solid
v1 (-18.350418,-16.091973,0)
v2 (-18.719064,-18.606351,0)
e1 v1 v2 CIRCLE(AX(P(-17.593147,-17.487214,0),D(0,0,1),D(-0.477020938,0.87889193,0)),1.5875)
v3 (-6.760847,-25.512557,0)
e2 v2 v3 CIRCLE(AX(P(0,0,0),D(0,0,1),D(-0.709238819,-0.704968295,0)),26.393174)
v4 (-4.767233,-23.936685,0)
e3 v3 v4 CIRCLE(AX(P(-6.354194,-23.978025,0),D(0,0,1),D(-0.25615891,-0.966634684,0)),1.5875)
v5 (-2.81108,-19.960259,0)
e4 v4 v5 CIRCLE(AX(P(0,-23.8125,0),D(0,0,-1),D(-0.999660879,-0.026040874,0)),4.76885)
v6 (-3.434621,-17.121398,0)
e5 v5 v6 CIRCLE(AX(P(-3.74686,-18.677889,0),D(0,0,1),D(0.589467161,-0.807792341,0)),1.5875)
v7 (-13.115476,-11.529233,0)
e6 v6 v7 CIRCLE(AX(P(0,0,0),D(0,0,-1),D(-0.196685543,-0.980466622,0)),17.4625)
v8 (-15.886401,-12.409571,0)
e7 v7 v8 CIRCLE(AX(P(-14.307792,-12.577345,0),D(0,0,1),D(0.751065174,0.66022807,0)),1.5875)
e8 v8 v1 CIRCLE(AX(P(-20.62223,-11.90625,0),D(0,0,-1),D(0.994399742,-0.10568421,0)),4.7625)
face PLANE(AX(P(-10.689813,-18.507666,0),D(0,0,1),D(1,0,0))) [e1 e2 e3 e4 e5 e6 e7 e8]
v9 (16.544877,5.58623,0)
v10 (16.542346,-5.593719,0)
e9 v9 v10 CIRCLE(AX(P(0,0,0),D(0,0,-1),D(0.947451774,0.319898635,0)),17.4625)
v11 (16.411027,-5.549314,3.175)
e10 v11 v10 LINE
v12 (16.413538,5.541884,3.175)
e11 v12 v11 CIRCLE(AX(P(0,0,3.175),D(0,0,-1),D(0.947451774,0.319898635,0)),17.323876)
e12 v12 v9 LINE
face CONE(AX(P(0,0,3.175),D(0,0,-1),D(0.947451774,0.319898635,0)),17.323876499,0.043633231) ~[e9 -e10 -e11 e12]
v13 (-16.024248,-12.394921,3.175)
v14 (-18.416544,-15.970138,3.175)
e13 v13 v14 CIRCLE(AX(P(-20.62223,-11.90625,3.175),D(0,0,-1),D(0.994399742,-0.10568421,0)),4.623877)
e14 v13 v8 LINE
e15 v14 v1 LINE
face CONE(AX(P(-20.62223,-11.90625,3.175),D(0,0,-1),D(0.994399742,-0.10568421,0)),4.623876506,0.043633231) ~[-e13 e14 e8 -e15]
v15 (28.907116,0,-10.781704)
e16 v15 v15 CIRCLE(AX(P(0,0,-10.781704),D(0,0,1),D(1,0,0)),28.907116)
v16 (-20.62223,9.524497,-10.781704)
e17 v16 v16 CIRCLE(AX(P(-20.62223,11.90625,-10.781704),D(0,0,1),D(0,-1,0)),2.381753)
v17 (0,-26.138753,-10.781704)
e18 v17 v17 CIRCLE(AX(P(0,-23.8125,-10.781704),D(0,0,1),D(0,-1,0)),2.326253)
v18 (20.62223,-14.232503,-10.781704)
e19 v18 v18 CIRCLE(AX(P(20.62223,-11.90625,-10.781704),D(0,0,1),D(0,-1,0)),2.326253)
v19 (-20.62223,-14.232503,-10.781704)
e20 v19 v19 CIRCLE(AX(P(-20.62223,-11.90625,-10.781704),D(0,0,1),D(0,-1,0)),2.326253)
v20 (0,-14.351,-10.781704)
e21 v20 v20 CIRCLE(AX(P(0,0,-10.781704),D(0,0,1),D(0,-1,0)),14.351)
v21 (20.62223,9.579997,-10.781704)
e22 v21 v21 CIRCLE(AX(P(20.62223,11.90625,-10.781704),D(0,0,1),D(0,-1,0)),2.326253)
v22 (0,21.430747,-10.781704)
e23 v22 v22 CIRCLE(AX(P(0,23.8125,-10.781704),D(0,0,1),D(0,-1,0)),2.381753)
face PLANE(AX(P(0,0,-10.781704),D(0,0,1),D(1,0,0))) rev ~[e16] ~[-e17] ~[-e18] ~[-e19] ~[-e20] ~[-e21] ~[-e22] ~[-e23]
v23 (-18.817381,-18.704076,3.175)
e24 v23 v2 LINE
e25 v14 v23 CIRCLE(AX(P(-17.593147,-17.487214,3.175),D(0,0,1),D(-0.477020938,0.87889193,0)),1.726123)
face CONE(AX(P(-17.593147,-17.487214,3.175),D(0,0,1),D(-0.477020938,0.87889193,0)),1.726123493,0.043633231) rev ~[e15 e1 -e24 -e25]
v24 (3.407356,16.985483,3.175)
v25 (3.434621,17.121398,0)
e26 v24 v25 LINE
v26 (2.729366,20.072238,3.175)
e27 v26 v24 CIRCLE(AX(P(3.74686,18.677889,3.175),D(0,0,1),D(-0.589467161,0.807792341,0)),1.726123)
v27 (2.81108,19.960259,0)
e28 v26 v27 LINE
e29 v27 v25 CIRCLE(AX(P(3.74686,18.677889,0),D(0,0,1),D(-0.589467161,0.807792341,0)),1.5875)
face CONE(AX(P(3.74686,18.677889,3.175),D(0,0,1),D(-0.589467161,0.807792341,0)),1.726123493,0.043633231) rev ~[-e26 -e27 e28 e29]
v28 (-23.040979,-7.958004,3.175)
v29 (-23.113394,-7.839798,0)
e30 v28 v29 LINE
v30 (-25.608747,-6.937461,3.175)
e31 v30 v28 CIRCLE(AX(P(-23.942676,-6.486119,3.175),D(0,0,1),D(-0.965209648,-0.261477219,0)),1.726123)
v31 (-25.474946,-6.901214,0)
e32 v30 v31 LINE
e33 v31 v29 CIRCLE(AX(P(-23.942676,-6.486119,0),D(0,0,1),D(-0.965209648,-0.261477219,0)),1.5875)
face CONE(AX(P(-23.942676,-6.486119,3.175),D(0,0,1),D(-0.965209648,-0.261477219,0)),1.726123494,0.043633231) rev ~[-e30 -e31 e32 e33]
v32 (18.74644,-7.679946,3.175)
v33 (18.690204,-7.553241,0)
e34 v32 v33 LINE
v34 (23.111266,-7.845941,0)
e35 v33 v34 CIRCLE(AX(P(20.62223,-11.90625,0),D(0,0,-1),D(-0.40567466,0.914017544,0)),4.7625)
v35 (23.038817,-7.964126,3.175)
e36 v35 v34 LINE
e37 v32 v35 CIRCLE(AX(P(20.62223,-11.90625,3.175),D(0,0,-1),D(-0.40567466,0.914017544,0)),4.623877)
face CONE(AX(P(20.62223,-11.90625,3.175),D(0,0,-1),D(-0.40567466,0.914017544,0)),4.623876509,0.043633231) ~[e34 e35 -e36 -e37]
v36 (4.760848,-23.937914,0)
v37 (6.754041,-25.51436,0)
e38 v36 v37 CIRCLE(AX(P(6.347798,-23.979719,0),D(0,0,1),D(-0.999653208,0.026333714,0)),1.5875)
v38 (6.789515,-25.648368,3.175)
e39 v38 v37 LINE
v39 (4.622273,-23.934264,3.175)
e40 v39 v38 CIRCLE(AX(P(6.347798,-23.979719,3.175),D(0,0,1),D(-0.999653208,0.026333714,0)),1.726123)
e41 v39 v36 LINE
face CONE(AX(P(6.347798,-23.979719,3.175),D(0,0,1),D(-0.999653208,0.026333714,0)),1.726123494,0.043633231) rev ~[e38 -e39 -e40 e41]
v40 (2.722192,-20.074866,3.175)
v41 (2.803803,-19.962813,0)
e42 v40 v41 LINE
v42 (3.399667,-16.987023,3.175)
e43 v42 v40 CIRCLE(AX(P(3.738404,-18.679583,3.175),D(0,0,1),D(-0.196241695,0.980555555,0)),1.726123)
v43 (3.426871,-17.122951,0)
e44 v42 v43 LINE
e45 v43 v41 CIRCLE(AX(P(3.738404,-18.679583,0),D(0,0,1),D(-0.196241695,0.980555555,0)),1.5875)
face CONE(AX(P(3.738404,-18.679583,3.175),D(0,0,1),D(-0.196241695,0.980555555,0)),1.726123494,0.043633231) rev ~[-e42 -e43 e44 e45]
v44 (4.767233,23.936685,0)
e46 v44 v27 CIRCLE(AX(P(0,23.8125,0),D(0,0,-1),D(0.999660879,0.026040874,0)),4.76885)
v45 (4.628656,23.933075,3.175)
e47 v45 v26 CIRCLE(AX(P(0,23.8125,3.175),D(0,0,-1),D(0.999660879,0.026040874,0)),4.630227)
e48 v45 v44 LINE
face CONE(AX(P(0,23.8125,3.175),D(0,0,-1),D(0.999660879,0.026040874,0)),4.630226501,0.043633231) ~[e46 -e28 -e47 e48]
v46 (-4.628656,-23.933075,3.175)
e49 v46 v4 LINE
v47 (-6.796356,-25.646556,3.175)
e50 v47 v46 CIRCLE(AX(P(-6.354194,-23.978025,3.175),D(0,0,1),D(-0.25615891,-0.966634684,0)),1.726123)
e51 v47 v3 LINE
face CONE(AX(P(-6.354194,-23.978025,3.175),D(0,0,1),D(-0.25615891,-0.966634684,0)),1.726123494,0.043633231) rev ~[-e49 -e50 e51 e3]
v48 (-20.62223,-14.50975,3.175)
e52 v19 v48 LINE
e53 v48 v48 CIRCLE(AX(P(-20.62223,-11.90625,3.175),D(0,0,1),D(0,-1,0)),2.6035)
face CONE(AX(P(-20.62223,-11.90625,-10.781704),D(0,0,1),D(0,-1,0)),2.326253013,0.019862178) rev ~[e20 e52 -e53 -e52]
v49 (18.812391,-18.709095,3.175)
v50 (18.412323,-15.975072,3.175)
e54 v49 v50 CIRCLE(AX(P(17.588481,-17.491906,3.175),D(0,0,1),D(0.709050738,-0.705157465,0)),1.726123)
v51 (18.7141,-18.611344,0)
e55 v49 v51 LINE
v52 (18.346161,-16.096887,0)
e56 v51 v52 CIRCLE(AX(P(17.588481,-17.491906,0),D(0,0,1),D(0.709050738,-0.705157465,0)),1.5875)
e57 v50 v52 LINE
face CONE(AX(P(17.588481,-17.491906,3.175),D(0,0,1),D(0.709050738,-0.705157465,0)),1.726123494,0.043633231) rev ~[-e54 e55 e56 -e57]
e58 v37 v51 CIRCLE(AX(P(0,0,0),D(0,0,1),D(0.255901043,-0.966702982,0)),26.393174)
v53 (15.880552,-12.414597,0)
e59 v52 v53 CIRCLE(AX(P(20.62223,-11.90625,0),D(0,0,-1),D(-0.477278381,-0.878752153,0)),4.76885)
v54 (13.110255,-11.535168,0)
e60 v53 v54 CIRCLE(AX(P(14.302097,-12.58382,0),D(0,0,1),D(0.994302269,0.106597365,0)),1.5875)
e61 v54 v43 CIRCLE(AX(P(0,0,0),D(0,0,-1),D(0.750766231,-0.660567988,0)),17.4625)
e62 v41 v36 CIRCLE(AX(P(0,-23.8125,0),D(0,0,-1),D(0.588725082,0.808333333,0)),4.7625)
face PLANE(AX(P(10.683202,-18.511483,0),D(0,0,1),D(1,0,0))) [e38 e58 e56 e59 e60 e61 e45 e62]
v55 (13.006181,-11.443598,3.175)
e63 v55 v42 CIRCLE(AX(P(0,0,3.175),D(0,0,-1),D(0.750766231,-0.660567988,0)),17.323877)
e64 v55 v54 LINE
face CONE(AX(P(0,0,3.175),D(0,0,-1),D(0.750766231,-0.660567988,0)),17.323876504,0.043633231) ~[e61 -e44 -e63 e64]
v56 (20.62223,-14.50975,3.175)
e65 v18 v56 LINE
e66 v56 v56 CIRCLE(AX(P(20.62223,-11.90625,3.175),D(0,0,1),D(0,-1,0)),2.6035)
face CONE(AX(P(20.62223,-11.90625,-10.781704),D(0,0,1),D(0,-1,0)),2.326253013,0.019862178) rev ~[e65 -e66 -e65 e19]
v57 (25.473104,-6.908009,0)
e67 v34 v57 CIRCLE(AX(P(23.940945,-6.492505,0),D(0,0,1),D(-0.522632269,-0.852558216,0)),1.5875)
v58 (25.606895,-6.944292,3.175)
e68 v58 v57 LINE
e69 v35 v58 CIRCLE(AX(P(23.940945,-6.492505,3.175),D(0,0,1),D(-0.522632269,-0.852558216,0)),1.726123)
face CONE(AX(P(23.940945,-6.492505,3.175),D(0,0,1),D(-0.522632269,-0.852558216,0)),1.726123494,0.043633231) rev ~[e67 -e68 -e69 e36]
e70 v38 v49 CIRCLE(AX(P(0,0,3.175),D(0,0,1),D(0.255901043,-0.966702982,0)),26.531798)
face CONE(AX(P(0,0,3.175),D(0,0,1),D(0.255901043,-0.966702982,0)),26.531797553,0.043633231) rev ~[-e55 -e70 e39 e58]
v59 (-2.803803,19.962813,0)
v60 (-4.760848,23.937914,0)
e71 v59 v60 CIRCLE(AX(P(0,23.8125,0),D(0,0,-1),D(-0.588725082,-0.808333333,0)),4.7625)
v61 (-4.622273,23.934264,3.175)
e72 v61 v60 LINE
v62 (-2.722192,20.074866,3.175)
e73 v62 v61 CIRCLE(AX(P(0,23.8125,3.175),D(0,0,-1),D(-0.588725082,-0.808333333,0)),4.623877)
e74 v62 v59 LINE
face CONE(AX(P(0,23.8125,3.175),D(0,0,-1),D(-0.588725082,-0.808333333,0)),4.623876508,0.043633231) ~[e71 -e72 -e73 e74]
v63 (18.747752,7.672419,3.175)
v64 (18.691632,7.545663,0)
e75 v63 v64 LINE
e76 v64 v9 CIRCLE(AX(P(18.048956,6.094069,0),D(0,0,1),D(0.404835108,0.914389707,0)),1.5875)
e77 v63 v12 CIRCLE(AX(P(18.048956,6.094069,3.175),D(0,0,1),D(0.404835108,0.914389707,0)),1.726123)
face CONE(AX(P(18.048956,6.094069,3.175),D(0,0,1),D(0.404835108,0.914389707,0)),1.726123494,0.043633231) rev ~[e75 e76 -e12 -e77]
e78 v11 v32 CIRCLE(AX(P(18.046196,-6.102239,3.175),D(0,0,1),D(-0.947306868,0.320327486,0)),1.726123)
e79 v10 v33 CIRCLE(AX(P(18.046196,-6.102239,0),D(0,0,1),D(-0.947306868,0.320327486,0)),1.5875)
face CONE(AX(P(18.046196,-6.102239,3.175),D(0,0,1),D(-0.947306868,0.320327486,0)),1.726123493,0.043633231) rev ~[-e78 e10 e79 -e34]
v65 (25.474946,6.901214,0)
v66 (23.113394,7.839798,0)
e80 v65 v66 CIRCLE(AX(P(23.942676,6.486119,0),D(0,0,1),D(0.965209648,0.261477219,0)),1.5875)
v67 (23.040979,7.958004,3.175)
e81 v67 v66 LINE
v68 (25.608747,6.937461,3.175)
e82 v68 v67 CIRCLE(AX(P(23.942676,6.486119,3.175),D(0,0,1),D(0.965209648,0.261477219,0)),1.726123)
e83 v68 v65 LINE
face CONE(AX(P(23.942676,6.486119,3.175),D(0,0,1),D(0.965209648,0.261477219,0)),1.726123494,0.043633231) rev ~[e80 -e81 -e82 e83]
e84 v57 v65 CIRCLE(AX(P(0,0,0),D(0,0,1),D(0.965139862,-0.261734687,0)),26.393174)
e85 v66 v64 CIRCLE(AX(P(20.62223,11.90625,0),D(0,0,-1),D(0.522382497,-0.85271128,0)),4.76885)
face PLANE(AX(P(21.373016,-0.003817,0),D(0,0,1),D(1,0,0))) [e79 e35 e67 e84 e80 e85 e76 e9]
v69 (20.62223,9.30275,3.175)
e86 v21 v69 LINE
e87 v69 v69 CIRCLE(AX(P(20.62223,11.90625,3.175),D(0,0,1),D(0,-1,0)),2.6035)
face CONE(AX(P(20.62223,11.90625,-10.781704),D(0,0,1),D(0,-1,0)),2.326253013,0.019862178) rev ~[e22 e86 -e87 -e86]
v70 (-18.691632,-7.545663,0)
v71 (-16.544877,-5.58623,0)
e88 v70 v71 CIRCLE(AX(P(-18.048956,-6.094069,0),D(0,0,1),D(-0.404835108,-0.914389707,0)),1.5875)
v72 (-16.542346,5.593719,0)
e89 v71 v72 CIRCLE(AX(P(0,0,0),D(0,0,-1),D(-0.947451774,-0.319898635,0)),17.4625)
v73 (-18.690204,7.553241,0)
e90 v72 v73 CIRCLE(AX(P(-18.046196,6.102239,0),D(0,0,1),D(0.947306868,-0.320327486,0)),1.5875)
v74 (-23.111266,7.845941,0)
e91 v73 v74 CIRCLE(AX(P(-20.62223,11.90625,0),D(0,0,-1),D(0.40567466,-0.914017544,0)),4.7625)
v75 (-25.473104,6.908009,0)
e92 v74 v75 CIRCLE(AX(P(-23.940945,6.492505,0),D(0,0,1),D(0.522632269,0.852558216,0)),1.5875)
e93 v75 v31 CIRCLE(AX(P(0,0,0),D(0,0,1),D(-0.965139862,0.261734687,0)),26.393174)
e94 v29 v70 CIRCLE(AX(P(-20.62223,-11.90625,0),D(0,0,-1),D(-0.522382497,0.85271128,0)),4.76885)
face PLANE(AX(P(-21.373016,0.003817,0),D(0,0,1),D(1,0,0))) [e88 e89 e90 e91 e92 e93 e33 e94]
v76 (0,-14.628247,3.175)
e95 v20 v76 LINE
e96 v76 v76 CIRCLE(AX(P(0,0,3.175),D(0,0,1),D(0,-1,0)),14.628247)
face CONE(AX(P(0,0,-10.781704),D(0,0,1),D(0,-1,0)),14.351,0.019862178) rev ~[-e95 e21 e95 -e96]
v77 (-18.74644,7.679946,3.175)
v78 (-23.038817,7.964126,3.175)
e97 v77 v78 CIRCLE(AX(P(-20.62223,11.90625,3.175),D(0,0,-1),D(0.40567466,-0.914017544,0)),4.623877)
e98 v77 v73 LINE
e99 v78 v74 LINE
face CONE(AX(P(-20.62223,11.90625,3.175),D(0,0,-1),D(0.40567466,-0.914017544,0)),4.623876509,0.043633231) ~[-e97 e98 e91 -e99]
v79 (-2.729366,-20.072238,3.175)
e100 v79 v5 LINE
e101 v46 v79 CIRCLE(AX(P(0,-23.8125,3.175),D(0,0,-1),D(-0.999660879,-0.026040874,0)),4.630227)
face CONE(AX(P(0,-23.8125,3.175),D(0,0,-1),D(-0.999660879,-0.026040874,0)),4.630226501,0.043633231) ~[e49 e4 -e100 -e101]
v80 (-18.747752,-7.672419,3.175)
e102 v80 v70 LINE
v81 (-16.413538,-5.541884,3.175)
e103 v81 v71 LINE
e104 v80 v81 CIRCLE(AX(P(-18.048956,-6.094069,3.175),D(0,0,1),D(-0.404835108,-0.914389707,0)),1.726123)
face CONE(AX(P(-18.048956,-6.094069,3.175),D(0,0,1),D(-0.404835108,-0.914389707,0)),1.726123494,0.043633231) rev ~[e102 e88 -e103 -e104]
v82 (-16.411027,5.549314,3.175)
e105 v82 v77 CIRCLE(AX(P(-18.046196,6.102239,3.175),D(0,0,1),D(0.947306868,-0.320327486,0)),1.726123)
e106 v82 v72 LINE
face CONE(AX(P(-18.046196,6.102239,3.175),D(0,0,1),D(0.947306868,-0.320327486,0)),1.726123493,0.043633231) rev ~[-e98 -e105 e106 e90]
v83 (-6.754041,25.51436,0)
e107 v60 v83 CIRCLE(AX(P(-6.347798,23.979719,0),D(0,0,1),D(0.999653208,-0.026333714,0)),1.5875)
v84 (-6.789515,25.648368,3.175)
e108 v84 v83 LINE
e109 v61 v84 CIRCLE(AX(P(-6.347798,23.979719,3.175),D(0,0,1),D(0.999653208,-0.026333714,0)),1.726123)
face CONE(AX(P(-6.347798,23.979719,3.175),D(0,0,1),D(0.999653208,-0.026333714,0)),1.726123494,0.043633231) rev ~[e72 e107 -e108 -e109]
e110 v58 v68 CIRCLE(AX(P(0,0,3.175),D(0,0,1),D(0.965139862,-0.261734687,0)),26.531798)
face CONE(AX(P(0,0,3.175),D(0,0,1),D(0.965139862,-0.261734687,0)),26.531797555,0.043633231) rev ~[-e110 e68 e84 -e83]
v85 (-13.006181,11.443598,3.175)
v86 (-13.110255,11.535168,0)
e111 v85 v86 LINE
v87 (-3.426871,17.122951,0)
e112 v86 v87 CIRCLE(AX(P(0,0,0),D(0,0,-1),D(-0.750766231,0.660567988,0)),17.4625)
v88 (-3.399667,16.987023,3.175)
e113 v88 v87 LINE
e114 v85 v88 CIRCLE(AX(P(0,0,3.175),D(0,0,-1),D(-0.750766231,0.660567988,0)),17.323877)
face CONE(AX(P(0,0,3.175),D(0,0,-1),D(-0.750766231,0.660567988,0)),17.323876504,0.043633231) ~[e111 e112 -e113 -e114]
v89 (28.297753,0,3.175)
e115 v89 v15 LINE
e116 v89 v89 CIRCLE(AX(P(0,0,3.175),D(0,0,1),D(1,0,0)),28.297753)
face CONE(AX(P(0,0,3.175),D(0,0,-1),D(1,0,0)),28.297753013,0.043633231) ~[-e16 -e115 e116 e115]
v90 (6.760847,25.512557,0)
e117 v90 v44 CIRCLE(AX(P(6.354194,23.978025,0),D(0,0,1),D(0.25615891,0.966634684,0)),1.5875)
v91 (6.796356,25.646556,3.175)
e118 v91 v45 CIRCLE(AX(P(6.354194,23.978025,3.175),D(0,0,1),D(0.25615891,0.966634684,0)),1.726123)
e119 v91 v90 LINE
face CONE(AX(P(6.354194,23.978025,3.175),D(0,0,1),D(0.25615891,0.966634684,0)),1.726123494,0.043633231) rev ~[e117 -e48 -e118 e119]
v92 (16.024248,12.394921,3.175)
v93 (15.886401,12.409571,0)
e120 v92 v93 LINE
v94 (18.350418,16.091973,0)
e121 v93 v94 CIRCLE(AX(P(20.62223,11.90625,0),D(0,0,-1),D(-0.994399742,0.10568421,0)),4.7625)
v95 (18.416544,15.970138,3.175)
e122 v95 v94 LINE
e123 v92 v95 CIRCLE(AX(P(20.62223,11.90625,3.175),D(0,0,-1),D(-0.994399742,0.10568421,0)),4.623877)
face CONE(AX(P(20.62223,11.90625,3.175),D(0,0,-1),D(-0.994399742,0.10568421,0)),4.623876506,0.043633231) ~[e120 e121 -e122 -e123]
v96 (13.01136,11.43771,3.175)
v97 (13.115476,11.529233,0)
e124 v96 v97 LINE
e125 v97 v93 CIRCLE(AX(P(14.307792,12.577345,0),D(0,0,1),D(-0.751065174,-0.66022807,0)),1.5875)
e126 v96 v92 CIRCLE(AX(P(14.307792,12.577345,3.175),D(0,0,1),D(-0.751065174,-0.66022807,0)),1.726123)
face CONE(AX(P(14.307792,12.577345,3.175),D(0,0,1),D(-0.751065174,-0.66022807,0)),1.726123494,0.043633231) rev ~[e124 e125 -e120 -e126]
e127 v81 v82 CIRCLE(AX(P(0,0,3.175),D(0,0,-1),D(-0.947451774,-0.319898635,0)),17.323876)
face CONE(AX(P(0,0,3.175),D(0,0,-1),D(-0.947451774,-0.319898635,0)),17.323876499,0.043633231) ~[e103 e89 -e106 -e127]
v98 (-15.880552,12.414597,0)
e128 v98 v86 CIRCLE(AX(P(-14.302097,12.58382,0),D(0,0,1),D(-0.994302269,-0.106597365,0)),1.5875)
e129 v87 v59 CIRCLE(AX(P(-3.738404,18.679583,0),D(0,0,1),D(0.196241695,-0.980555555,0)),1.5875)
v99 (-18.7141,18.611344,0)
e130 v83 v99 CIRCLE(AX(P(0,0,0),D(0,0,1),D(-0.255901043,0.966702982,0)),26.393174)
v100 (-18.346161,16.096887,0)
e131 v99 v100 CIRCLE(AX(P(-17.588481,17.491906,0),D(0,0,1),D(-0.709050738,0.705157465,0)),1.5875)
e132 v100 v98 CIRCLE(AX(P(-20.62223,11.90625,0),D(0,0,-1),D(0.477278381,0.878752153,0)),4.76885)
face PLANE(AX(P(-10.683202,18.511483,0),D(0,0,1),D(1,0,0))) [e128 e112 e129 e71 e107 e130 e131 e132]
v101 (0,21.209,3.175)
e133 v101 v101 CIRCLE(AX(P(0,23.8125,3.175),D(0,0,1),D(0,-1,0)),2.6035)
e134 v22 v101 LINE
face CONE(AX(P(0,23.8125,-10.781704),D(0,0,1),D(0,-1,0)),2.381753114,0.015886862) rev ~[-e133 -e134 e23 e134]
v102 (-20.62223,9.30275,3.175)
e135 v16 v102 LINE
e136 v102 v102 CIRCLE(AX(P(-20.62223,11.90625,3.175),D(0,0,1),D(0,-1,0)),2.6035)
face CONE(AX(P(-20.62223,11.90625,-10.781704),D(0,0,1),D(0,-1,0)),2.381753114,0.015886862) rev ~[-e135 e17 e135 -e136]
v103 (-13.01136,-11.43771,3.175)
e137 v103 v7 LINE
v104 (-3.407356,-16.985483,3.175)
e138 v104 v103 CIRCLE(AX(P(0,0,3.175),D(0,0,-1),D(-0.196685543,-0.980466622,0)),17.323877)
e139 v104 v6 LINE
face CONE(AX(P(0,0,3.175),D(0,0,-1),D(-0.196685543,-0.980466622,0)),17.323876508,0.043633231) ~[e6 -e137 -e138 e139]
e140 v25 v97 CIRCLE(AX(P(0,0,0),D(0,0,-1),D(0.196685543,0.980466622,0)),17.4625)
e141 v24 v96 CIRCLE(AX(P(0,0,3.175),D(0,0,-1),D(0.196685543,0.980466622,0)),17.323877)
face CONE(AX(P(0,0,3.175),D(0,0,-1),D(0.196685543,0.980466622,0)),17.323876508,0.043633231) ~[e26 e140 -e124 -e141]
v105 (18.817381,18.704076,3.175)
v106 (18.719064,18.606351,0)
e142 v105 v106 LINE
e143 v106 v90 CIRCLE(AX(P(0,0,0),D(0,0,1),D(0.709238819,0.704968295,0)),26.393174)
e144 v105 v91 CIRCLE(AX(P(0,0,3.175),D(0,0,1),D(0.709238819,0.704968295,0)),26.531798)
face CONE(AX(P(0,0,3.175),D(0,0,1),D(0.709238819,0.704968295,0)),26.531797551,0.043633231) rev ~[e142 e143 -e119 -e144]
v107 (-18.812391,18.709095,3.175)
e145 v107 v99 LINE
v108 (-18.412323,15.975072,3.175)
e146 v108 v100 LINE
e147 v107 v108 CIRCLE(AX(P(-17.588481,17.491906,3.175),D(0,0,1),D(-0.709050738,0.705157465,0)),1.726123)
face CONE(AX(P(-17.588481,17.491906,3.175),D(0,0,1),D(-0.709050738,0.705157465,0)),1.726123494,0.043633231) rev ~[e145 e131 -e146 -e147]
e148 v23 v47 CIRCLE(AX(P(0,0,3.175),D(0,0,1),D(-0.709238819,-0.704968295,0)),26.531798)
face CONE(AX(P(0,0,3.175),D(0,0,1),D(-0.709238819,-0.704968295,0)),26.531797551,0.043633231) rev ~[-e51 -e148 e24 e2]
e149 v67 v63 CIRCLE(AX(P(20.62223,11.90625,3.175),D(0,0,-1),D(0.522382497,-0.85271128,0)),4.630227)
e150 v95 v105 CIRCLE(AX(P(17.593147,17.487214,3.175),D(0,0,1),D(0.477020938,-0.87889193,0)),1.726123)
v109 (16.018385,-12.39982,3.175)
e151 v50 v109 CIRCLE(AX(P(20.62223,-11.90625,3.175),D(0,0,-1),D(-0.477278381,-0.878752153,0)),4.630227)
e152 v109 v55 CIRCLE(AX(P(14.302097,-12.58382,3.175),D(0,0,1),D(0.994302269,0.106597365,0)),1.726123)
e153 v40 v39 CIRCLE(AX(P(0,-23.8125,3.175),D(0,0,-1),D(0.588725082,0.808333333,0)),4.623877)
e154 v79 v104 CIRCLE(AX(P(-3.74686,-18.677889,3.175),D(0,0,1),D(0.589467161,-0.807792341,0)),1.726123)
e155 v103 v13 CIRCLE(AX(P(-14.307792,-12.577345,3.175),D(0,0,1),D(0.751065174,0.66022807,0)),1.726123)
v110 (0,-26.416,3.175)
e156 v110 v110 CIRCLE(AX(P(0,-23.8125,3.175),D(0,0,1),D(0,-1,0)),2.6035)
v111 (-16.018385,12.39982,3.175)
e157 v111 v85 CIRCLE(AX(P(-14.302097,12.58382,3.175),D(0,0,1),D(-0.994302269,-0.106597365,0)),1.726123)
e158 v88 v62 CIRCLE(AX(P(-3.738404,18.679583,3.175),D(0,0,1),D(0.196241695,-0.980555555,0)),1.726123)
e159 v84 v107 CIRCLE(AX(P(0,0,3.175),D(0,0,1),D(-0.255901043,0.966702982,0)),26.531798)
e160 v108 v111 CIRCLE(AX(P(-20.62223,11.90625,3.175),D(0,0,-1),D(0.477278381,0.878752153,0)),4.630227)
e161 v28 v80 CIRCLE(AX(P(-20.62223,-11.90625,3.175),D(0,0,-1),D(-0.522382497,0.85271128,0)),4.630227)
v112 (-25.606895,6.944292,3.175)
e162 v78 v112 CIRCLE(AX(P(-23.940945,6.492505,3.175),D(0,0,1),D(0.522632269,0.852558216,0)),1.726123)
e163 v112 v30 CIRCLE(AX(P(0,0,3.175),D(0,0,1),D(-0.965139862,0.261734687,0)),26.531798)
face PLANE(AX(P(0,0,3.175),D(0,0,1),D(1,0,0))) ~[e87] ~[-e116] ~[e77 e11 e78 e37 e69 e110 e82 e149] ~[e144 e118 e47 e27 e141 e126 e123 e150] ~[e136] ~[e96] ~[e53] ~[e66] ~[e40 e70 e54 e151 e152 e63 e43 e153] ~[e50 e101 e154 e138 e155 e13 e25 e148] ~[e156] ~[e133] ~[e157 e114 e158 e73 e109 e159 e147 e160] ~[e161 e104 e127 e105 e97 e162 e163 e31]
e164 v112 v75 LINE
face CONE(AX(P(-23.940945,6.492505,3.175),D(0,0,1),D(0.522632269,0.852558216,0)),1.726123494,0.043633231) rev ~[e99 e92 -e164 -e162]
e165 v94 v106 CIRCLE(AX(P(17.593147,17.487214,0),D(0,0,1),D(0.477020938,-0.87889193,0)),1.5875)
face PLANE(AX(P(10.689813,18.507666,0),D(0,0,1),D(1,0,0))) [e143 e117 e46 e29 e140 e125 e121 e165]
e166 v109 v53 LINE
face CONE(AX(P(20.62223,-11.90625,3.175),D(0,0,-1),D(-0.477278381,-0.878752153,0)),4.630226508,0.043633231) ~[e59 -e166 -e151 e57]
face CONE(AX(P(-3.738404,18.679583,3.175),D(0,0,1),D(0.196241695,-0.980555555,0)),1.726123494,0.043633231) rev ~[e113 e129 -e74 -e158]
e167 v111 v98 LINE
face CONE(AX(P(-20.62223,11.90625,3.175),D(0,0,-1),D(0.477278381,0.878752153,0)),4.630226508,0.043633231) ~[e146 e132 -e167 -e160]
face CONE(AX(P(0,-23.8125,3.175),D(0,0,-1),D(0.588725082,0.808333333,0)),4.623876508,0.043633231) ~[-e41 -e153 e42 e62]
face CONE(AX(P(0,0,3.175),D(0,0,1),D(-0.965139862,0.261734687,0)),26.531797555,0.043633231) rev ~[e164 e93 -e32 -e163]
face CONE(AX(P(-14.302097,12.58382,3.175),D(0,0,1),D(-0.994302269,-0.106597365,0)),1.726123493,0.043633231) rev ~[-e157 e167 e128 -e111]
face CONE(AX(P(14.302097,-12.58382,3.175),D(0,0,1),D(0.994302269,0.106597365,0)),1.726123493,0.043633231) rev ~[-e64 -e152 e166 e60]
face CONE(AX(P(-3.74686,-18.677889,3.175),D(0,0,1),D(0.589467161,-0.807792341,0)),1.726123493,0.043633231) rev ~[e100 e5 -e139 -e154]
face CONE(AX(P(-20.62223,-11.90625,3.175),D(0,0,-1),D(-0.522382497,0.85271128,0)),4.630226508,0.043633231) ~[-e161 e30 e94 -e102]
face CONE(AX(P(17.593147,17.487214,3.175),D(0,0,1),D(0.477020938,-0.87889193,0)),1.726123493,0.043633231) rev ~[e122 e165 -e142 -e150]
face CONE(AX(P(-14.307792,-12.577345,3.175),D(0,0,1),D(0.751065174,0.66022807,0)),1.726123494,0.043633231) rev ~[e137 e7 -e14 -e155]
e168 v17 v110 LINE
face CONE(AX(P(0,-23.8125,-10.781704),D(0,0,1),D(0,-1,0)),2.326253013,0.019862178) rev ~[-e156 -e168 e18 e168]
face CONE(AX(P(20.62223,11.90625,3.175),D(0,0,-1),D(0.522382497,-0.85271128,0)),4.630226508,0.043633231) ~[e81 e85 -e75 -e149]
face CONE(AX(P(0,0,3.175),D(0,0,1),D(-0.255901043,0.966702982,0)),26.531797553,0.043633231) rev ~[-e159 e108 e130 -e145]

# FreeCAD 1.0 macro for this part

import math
import FreeCAD as App
import Part
import Sketcher
Q = App.Units.Quantity


def faces_at(feature, points):
    """Names of the faces that lie closest to the given points."""
    faces = feature.Shape.Faces
    near = lambda p: min(range(len(faces)), key=lambda i: faces[i].distToShape(Part.Vertex(*p))[0])
    return sorted({f"Face{near(p) + 1}" for p in points})


def add_polygon(sketch, points):
    """Adds a closed chain of lines whose ends are joined by coincident constraints."""
    first, n = sketch.GeometryCount, len(points)
    for a, b in zip(points, points[1:] + points[:1]):
        sketch.addGeometry(Part.LineSegment(App.Vector(*a, 0), App.Vector(*b, 0)), False)
    for i in range(n):
        sketch.addConstraint(Sketcher.Constraint("Coincident", first + i, 2, first + (i + 1) % n, 1))

doc = App.newDocument("Part")
body = doc.addObject("PartDesign::Body", "Body")

# Sketch on XZ plane
sketch1 = body.newObject("Sketcher::SketchObject", "Sketch")
sketch1.AttachmentSupport = (doc.getObject("XZ_Plane"), [""])
sketch1.MapMode = "FlatFace"
add_polygon(sketch1, [(28.907116, -10.781704), (0, -10.781704), (0, 3.175), (28.297753, 3.175)])  # lines 0-3
sketch1.addConstraint([
    Sketcher.Constraint("Horizontal", 0),
    Sketcher.Constraint("Vertical", 1),
    Sketcher.Constraint("Horizontal", 2),
    Sketcher.Constraint("PointOnObject", 0, 2, -2),
    Sketcher.Constraint("Angle", 3, Q("-87.5 deg")),
    Sketcher.Constraint("Distance", 3, Q("0.55 in")),
    Sketcher.Constraint("DistanceY", -1, 1, 1, 2, Q("0.125 in")),
    Sketcher.Constraint("DistanceX", 0, 2, 0, 1, Q("28.907116 mm")),
])
revolution = body.newObject("PartDesign::Revolution", "Revolution")
revolution.Profile = sketch1
revolution.ReferenceAxis = (sketch1, ["V_Axis"])
revolution.Angle = 360
body2 = doc.addObject("PartDesign::Body", "Body001")

# Sketch on XY plane
sketch2 = body2.newObject("Sketcher::SketchObject", "Sketch001")
sketch2.AttachmentSupport = (doc.getObject("XY_Plane001"), [""])
sketch2.MapMode = "FlatFace"
sketch2.AttachmentOffset = App.Placement(App.Vector(0, 0, 0.125 * 25.4), App.Rotation())
sketch2.addGeometry([
    Part.ArcOfCircle(Part.Circle(App.Vector(-20.62223, 11.90625, 0), App.Vector(0, 0, 1), 4.630227), math.radians(6.119205), math.radians(61.492201)),  # 0
    Part.ArcOfCircle(Part.Circle(App.Vector(-14.302097, 12.58382, 0), App.Vector(0, 0, 1), 1.726123), math.radians(-173.880795), math.radians(-41.343205)),  # 1
    Part.ArcOfCircle(Part.Circle(App.Vector(0, 0, 0), App.Vector(0, 0, 1), 17.323877), math.radians(101.317269), math.radians(138.656795)),  # 2
    Part.ArcOfCircle(Part.Circle(App.Vector(-3.738404, 18.679583, 0), App.Vector(0, 0, 1), 1.726123), math.radians(-78.682731), math.radians(53.933412)),  # 3
    Part.ArcOfCircle(Part.Circle(App.Vector(0, 23.8125, 0), App.Vector(0, 0, 1), 4.623877), math.radians(178.491015), math.radians(233.933412)),  # 4
    Part.ArcOfCircle(Part.Circle(App.Vector(-6.347798, 23.979719, 0), App.Vector(0, 0, 1), 1.726123), math.radians(-1.508985), math.radians(104.826983)),  # 5
    Part.ArcOfCircle(Part.Circle(App.Vector(0, 0, 0), App.Vector(0, 0, 1), 26.531798), math.radians(104.826983), math.radians(135.157733)),  # 6
    Part.ArcOfCircle(Part.Circle(App.Vector(-17.588481, 17.491906, 0), App.Vector(0, 0, 1), 1.726123), math.radians(135.157733), math.radians(241.492201)),  # 7
], False)
sketch2.addConstraint([
    Sketcher.Constraint("Tangent", 0, 1, 1, 1),
    Sketcher.Constraint("Tangent", 1, 2, 2, 2),
    Sketcher.Constraint("Tangent", 2, 1, 3, 1),
    Sketcher.Constraint("Tangent", 3, 2, 4, 2),
    Sketcher.Constraint("Tangent", 4, 1, 5, 1),
    Sketcher.Constraint("Tangent", 5, 2, 6, 1),
    Sketcher.Constraint("Tangent", 6, 2, 7, 1),
    Sketcher.Constraint("Tangent", 7, 2, 0, 2),
    Sketcher.Constraint("Coincident", 2, 3, -1, 1),
    Sketcher.Constraint("Coincident", 6, 3, -1, 1),
    Sketcher.Constraint("Equal", 1, 3),
    Sketcher.Constraint("Equal", 3, 5),
    Sketcher.Constraint("Equal", 5, 7),
    Sketcher.Constraint("PointOnObject", 4, 3, -2),
    Sketcher.Constraint("DistanceY", -1, 1, 0, 3, Q("0.46875 in")),
    Sketcher.Constraint("DistanceY", -1, 1, 4, 3, Q("0.9375 in")),
    Sketcher.Constraint("Radius", 0, Q("4.630227 mm")),
    Sketcher.Constraint("Radius", 1, Q("1.726123 mm")),
    Sketcher.Constraint("Radius", 2, Q("17.323877 mm")),
    Sketcher.Constraint("Radius", 4, Q("4.623877 mm")),
    Sketcher.Constraint("Radius", 6, Q("26.531798 mm")),
    Sketcher.Constraint("DistanceY", -1, 1, 1, 2, Q("11.443598 mm")),
])
pad1 = body2.newObject("PartDesign::Pad", "Pad")
pad1.Profile = sketch2
pad1.Length = Q("0.125 in")
pad1.Reversed = True
doc.recompute()

datumplane = body2.newObject("PartDesign::Plane", "DatumPlane")
datumplane.AttachmentSupport = (doc.getObject("XY_Plane001"), [""])
datumplane.MapMode = "FlatFace"
datumplane.AttachmentOffset = App.Placement(App.Vector(0, 0, 0.125 * 25.4), App.Rotation())
draft = body2.newObject("PartDesign::Draft", "Draft")
draft.Base = (pad1, faces_at(pad1, [
    (-19.296, 17.242, 1.587),
    (-16.775, 14.482, 1.587),
    (-14.824, 10.939, 1.587),
    (-8.659, 15.005, 1.587),
    (-2.052, 18.31, 1.587),
    (-4.148, 21.77, 1.587),
    (-5.277, 25.334, 1.587),
    (-13.263, 22.979, 1.587),
]))
draft.NeutralPlane = (datumplane, [""])
draft.Angle = 2.5
draft.Reversed = True
doc.recompute()

boolean = body.newObject("PartDesign::Boolean", "Boolean")
boolean.Type = "Cut"
boolean.addObjects([body2])
body3 = doc.addObject("PartDesign::Body", "Body002")

# Sketch on XY plane
sketch3 = body3.newObject("Sketcher::SketchObject", "Sketch002")
sketch3.AttachmentSupport = (doc.getObject("XY_Plane002"), [""])
sketch3.MapMode = "FlatFace"
sketch3.AttachmentOffset = App.Placement(App.Vector(0, 0, 0.125 * 25.4), App.Rotation())
sketch3.addGeometry([
    Part.ArcOfCircle(Part.Circle(App.Vector(0, 23.8125, 0), App.Vector(0, 0, 1), 4.630227), math.radians(-53.880795), math.radians(1.492201)),  # 0
    Part.ArcOfCircle(Part.Circle(App.Vector(3.74686, 18.677889, 0), App.Vector(0, 0, 1), 1.726123), math.radians(126.119205), math.radians(258.656795)),  # 1
    Part.ArcOfCircle(Part.Circle(App.Vector(0, 0, 0), App.Vector(0, 0, 1), 17.323877), math.radians(41.317269), math.radians(78.656795)),  # 2
    Part.ArcOfCircle(Part.Circle(App.Vector(14.307792, 12.577345, 0), App.Vector(0, 0, 1), 1.726123), math.radians(-138.682731), math.radians(-6.066588)),  # 3
    Part.ArcOfCircle(Part.Circle(App.Vector(20.62223, 11.90625, 0), App.Vector(0, 0, 1), 4.623877), math.radians(118.491015), math.radians(173.933412)),  # 4
    Part.ArcOfCircle(Part.Circle(App.Vector(17.593147, 17.487214, 0), App.Vector(0, 0, 1), 1.726123), math.radians(-61.508985), math.radians(44.826983)),  # 5
    Part.ArcOfCircle(Part.Circle(App.Vector(0, 0, 0), App.Vector(0, 0, 1), 26.531798), math.radians(44.826983), math.radians(75.157733)),  # 6
    Part.ArcOfCircle(Part.Circle(App.Vector(6.354194, 23.978025, 0), App.Vector(0, 0, 1), 1.726123), math.radians(75.157733), math.radians(181.492201)),  # 7
], False)
sketch3.addConstraint([
    Sketcher.Constraint("Tangent", 0, 1, 1, 1),
    Sketcher.Constraint("Tangent", 1, 2, 2, 2),
    Sketcher.Constraint("Tangent", 2, 1, 3, 1),
    Sketcher.Constraint("Tangent", 3, 2, 4, 2),
    Sketcher.Constraint("Tangent", 4, 1, 5, 1),
    Sketcher.Constraint("Tangent", 5, 2, 6, 1),
    Sketcher.Constraint("Tangent", 6, 2, 7, 1),
    Sketcher.Constraint("Tangent", 7, 2, 0, 2),
    Sketcher.Constraint("Coincident", 2, 3, -1, 1),
    Sketcher.Constraint("Coincident", 6, 3, -1, 1),
    Sketcher.Constraint("Equal", 1, 3),
    Sketcher.Constraint("Equal", 3, 5),
    Sketcher.Constraint("Equal", 5, 7),
    Sketcher.Constraint("PointOnObject", 0, 3, -2),
    Sketcher.Constraint("DistanceY", -1, 1, 0, 3, Q("0.9375 in")),
    Sketcher.Constraint("DistanceY", -1, 1, 4, 3, Q("0.46875 in")),
    Sketcher.Constraint("Radius", 0, Q("4.630227 mm")),
    Sketcher.Constraint("Radius", 1, Q("1.726123 mm")),
    Sketcher.Constraint("Radius", 2, Q("17.323877 mm")),
    Sketcher.Constraint("Radius", 4, Q("4.623877 mm")),
    Sketcher.Constraint("Radius", 6, Q("26.531798 mm")),
    Sketcher.Constraint("DistanceX", 3, 3, 4, 3, Q("0.2485999 in")),
])
pad2 = body3.newObject("PartDesign::Pad", "Pad001")
pad2.Profile = sketch3
pad2.Length = Q("0.125 in")
pad2.Reversed = True
doc.recompute()

datumplane2 = body3.newObject("PartDesign::Plane", "DatumPlane001")
datumplane2.AttachmentSupport = (doc.getObject("XY_Plane002"), [""])
datumplane2.MapMode = "FlatFace"
datumplane2.AttachmentOffset = App.Placement(App.Vector(0, 0, 0.125 * 25.4), App.Rotation())
draft2 = body3.newObject("PartDesign::Draft", "Draft001")
draft2.Base = (pad2, faces_at(pad2, [
    (5.284, 25.332, 1.587),
    (4.155, 21.769, 1.587),
    (2.061, 18.308, 1.587),
    (8.665, 15.001, 1.587),
    (14.83, 10.932, 1.587),
    (16.779, 14.478, 1.587),
    (19.301, 17.237, 1.587),
    (13.269, 22.975, 1.587),
]))
draft2.NeutralPlane = (datumplane2, [""])
draft2.Angle = 2.5
draft2.Reversed = True
doc.recompute()

boolean2 = body.newObject("PartDesign::Boolean", "Boolean001")
boolean2.Type = "Cut"
boolean2.addObjects([body3])
body4 = doc.addObject("PartDesign::Body", "Body003")

# Sketch on XY plane
sketch4 = body4.newObject("Sketcher::SketchObject", "Sketch003")
sketch4.AttachmentSupport = (doc.getObject("XY_Plane003"), [""])
sketch4.MapMode = "FlatFace"
sketch4.AttachmentOffset = App.Placement(App.Vector(0, 0, 0.125 * 25.4), App.Rotation())
sketch4.addGeometry([
    Part.ArcOfCircle(Part.Circle(App.Vector(20.62223, 11.90625, 0), App.Vector(0, 0, 1), 4.630227), math.radians(-113.880795), math.radians(-58.507799)),  # 0
    Part.ArcOfCircle(Part.Circle(App.Vector(18.048956, 6.094069, 0), App.Vector(0, 0, 1), 1.726123), math.radians(66.119205), math.radians(198.656795)),  # 1
    Part.ArcOfCircle(Part.Circle(App.Vector(0, 0, 0), App.Vector(0, 0, 1), 17.323876), math.radians(-18.682731), math.radians(18.656795)),  # 2
    Part.ArcOfCircle(Part.Circle(App.Vector(18.046196, -6.102239, 0), App.Vector(0, 0, 1), 1.726123), math.radians(161.317269), math.radians(293.933412)),  # 3
    Part.ArcOfCircle(Part.Circle(App.Vector(20.62223, -11.90625, 0), App.Vector(0, 0, 1), 4.623877), math.radians(58.491015), math.radians(113.933412)),  # 4
    Part.ArcOfCircle(Part.Circle(App.Vector(23.940945, -6.492505, 0), App.Vector(0, 0, 1), 1.726123), math.radians(-121.508985), math.radians(-15.173017)),  # 5
    Part.ArcOfCircle(Part.Circle(App.Vector(0, 0, 0), App.Vector(0, 0, 1), 26.531798), math.radians(-15.173017), math.radians(15.157733)),  # 6
    Part.ArcOfCircle(Part.Circle(App.Vector(23.942676, 6.486119, 0), App.Vector(0, 0, 1), 1.726123), math.radians(15.157733), math.radians(121.492201)),  # 7
], False)
sketch4.addConstraint([
    Sketcher.Constraint("Tangent", 0, 1, 1, 1),
    Sketcher.Constraint("Tangent", 1, 2, 2, 2),
    Sketcher.Constraint("Tangent", 2, 1, 3, 1),
    Sketcher.Constraint("Tangent", 3, 2, 4, 2),
    Sketcher.Constraint("Tangent", 4, 1, 5, 1),
    Sketcher.Constraint("Tangent", 5, 2, 6, 1),
    Sketcher.Constraint("Tangent", 6, 2, 7, 1),
    Sketcher.Constraint("Tangent", 7, 2, 0, 2),
    Sketcher.Constraint("Coincident", 2, 3, -1, 1),
    Sketcher.Constraint("Coincident", 6, 3, -1, 1),
    Sketcher.Constraint("Equal", 1, 3),
    Sketcher.Constraint("Equal", 3, 5),
    Sketcher.Constraint("Equal", 5, 7),
    Sketcher.Constraint("Symmetric", 0, 3, 4, 3, -1),
    Sketcher.Constraint("DistanceY", -1, 1, 0, 3, Q("0.46875 in")),
    Sketcher.Constraint("Radius", 0, Q("4.630227 mm")),
    Sketcher.Constraint("Radius", 1, Q("1.726123 mm")),
    Sketcher.Constraint("Radius", 2, Q("17.323876 mm")),
    Sketcher.Constraint("Radius", 4, Q("4.623877 mm")),
    Sketcher.Constraint("Radius", 6, Q("26.531798 mm")),
    Sketcher.Constraint("DistanceX", 7, 2, 7, 3, Q("0.0354999 in")),
])
pad3 = body4.newObject("PartDesign::Pad", "Pad002")
pad3.Profile = sketch4
pad3.Length = Q("0.125 in")
pad3.Reversed = True
doc.recompute()

datumplane3 = body4.newObject("PartDesign::Plane", "DatumPlane002")
datumplane3.AttachmentSupport = (doc.getObject("XY_Plane003"), [""])
datumplane3.MapMode = "FlatFace"
datumplane3.AttachmentOffset = App.Placement(App.Vector(0, 0, 0.125 * 25.4), App.Rotation())
draft3 = body4.newObject("PartDesign::Draft", "Draft002")
draft3.Base = (pad3, faces_at(pad3, [
    (26.532, -0.004, 1.587),
    (24.58, 8.09, 1.587),
    (20.93, 7.286, 1.587),
    (16.885, 7.369, 1.587),
    (17.324, -0.004, 1.587),
    (16.883, -7.377, 1.587),
    (20.928, -7.292, 1.587),
    (24.578, -8.097, 1.587),
]))
draft3.NeutralPlane = (datumplane3, [""])
draft3.Angle = 2.5
draft3.Reversed = True
doc.recompute()

boolean3 = body.newObject("PartDesign::Boolean", "Boolean002")
boolean3.Type = "Cut"
boolean3.addObjects([body4])
body5 = doc.addObject("PartDesign::Body", "Body004")

# Sketch on XY plane
sketch5 = body5.newObject("Sketcher::SketchObject", "Sketch004")
sketch5.AttachmentSupport = (doc.getObject("XY_Plane004"), [""])
sketch5.MapMode = "FlatFace"
sketch5.AttachmentOffset = App.Placement(App.Vector(0, 0, 0.125 * 25.4), App.Rotation())
sketch5.addGeometry([
    Part.ArcOfCircle(Part.Circle(App.Vector(20.62223, -11.90625, 0), App.Vector(0, 0, 1), 4.630227), math.radians(-173.880795), math.radians(-118.507799)),  # 0
    Part.ArcOfCircle(Part.Circle(App.Vector(14.302097, -12.58382, 0), App.Vector(0, 0, 1), 1.726123), math.radians(6.119205), math.radians(138.656795)),  # 1
    Part.ArcOfCircle(Part.Circle(App.Vector(0, 0, 0), App.Vector(0, 0, 1), 17.323877), math.radians(-78.682731), math.radians(-41.343205)),  # 2
    Part.ArcOfCircle(Part.Circle(App.Vector(3.738404, -18.679583, 0), App.Vector(0, 0, 1), 1.726123), math.radians(101.317269), math.radians(233.933412)),  # 3
    Part.ArcOfCircle(Part.Circle(App.Vector(0, -23.8125, 0), App.Vector(0, 0, 1), 4.623877), math.radians(-1.508985), math.radians(53.933412)),  # 4
    Part.ArcOfCircle(Part.Circle(App.Vector(6.347798, -23.979719, 0), App.Vector(0, 0, 1), 1.726123), math.radians(178.491015), math.radians(284.826983)),  # 5
    Part.ArcOfCircle(Part.Circle(App.Vector(0, 0, 0), App.Vector(0, 0, 1), 26.531798), math.radians(-75.173017), math.radians(-44.842267)),  # 6
    Part.ArcOfCircle(Part.Circle(App.Vector(17.588481, -17.491906, 0), App.Vector(0, 0, 1), 1.726123), math.radians(-44.842267), math.radians(61.492201)),  # 7
], False)
sketch5.addConstraint([
    Sketcher.Constraint("Tangent", 0, 1, 1, 1),
    Sketcher.Constraint("Tangent", 1, 2, 2, 2),
    Sketcher.Constraint("Tangent", 2, 1, 3, 1),
    Sketcher.Constraint("Tangent", 3, 2, 4, 2),
    Sketcher.Constraint("Tangent", 4, 1, 5, 1),
    Sketcher.Constraint("Tangent", 5, 2, 6, 1),
    Sketcher.Constraint("Tangent", 6, 2, 7, 1),
    Sketcher.Constraint("Tangent", 7, 2, 0, 2),
    Sketcher.Constraint("Coincident", 2, 3, -1, 1),
    Sketcher.Constraint("Coincident", 6, 3, -1, 1),
    Sketcher.Constraint("Equal", 1, 3),
    Sketcher.Constraint("Equal", 3, 5),
    Sketcher.Constraint("Equal", 5, 7),
    Sketcher.Constraint("PointOnObject", 4, 3, -2),
    Sketcher.Constraint("DistanceY", 0, 3, -1, 1, Q("0.46875 in")),
    Sketcher.Constraint("DistanceY", 4, 3, -1, 1, Q("0.9375 in")),
    Sketcher.Constraint("Radius", 0, Q("4.630227 mm")),
    Sketcher.Constraint("Radius", 1, Q("1.726123 mm")),
    Sketcher.Constraint("Radius", 2, Q("17.323877 mm")),
    Sketcher.Constraint("Radius", 4, Q("4.623877 mm")),
    Sketcher.Constraint("Radius", 6, Q("26.531798 mm")),
    Sketcher.Constraint("DistanceY", 1, 2, -1, 1, Q("11.443598 mm")),
])
pad4 = body5.newObject("PartDesign::Pad", "Pad003")
pad4.Profile = sketch5
pad4.Length = Q("0.125 in")
pad4.Reversed = True
doc.recompute()

datumplane4 = body5.newObject("PartDesign::Plane", "DatumPlane003")
datumplane4.AttachmentSupport = (doc.getObject("XY_Plane004"), [""])
datumplane4.MapMode = "FlatFace"
datumplane4.AttachmentOffset = App.Placement(App.Vector(0, 0, 0.125 * 25.4), App.Rotation())
draft4 = body5.newObject("PartDesign::Draft", "Draft003")
draft4.Base = (pad4, faces_at(pad4, [
    (19.296, -17.242, 1.587),
    (16.775, -14.482, 1.587),
    (14.824, -10.939, 1.587),
    (8.659, -15.005, 1.587),
    (2.052, -18.31, 1.587),
    (4.148, -21.77, 1.587),
    (5.277, -25.334, 1.587),
    (13.263, -22.979, 1.587),
]))
draft4.NeutralPlane = (datumplane4, [""])
draft4.Angle = 2.5
draft4.Reversed = True
doc.recompute()

boolean4 = body.newObject("PartDesign::Boolean", "Boolean003")
boolean4.Type = "Cut"
boolean4.addObjects([body5])
body6 = doc.addObject("PartDesign::Body", "Body005")

# Sketch on XY plane
sketch6 = body6.newObject("Sketcher::SketchObject", "Sketch005")
sketch6.AttachmentSupport = (doc.getObject("XY_Plane005"), [""])
sketch6.MapMode = "FlatFace"
sketch6.AttachmentOffset = App.Placement(App.Vector(0, 0, 0.125 * 25.4), App.Rotation())
sketch6.addGeometry([
    Part.ArcOfCircle(Part.Circle(App.Vector(0, -23.8125, 0), App.Vector(0, 0, 1), 4.630227), math.radians(126.119205), math.radians(181.492201)),  # 0
    Part.ArcOfCircle(Part.Circle(App.Vector(-3.74686, -18.677889, 0), App.Vector(0, 0, 1), 1.726123), math.radians(-53.880795), math.radians(78.656795)),  # 1
    Part.ArcOfCircle(Part.Circle(App.Vector(0, 0, 0), App.Vector(0, 0, 1), 17.323877), math.radians(-138.682731), math.radians(-101.343205)),  # 2
    Part.ArcOfCircle(Part.Circle(App.Vector(-14.307792, -12.577345, 0), App.Vector(0, 0, 1), 1.726123), math.radians(41.317269), math.radians(173.933412)),  # 3
    Part.ArcOfCircle(Part.Circle(App.Vector(-20.62223, -11.90625, 0), App.Vector(0, 0, 1), 4.623877), math.radians(-61.508985), math.radians(-6.066588)),  # 4
    Part.ArcOfCircle(Part.Circle(App.Vector(-17.593147, -17.487214, 0), App.Vector(0, 0, 1), 1.726123), math.radians(118.491015), math.radians(224.826983)),  # 5
    Part.ArcOfCircle(Part.Circle(App.Vector(0, 0, 0), App.Vector(0, 0, 1), 26.531798), math.radians(-135.173017), math.radians(-104.842267)),  # 6
    Part.ArcOfCircle(Part.Circle(App.Vector(-6.354194, -23.978025, 0), App.Vector(0, 0, 1), 1.726123), math.radians(-104.842267), math.radians(1.492201)),  # 7
], False)
sketch6.addConstraint([
    Sketcher.Constraint("Tangent", 0, 1, 1, 1),
    Sketcher.Constraint("Tangent", 1, 2, 2, 2),
    Sketcher.Constraint("Tangent", 2, 1, 3, 1),
    Sketcher.Constraint("Tangent", 3, 2, 4, 2),
    Sketcher.Constraint("Tangent", 4, 1, 5, 1),
    Sketcher.Constraint("Tangent", 5, 2, 6, 1),
    Sketcher.Constraint("Tangent", 6, 2, 7, 1),
    Sketcher.Constraint("Tangent", 7, 2, 0, 2),
    Sketcher.Constraint("Coincident", 2, 3, -1, 1),
    Sketcher.Constraint("Coincident", 6, 3, -1, 1),
    Sketcher.Constraint("Equal", 1, 3),
    Sketcher.Constraint("Equal", 3, 5),
    Sketcher.Constraint("Equal", 5, 7),
    Sketcher.Constraint("PointOnObject", 0, 3, -2),
    Sketcher.Constraint("DistanceY", 0, 3, -1, 1, Q("0.9375 in")),
    Sketcher.Constraint("DistanceY", 4, 3, -1, 1, Q("0.46875 in")),
    Sketcher.Constraint("Radius", 0, Q("4.630227 mm")),
    Sketcher.Constraint("Radius", 1, Q("1.726123 mm")),
    Sketcher.Constraint("Radius", 2, Q("17.323877 mm")),
    Sketcher.Constraint("Radius", 4, Q("4.623877 mm")),
    Sketcher.Constraint("Radius", 6, Q("26.531798 mm")),
    Sketcher.Constraint("DistanceX", 4, 3, 3, 3, Q("0.2485999 in")),
])
pad5 = body6.newObject("PartDesign::Pad", "Pad004")
pad5.Profile = sketch6
pad5.Length = Q("0.125 in")
pad5.Reversed = True
doc.recompute()

datumplane5 = body6.newObject("PartDesign::Plane", "DatumPlane004")
datumplane5.AttachmentSupport = (doc.getObject("XY_Plane005"), [""])
datumplane5.MapMode = "FlatFace"
datumplane5.AttachmentOffset = App.Placement(App.Vector(0, 0, 0.125 * 25.4), App.Rotation())
draft5 = body6.newObject("PartDesign::Draft", "Draft004")
draft5.Base = (pad5, faces_at(pad5, [
    (-5.284, -25.332, 1.587),
    (-4.155, -21.769, 1.587),
    (-2.061, -18.308, 1.587),
    (-8.665, -15.001, 1.587),
    (-14.83, -10.932, 1.587),
    (-16.779, -14.478, 1.587),
    (-19.301, -17.237, 1.587),
    (-13.269, -22.975, 1.587),
]))
draft5.NeutralPlane = (datumplane5, [""])
draft5.Angle = 2.5
draft5.Reversed = True
doc.recompute()

boolean5 = body.newObject("PartDesign::Boolean", "Boolean004")
boolean5.Type = "Cut"
boolean5.addObjects([body6])
body7 = doc.addObject("PartDesign::Body", "Body006")

# Sketch on XY plane
sketch7 = body7.newObject("Sketcher::SketchObject", "Sketch006")
sketch7.AttachmentSupport = (doc.getObject("XY_Plane006"), [""])
sketch7.MapMode = "FlatFace"
sketch7.AttachmentOffset = App.Placement(App.Vector(0, 0, 0.125 * 25.4), App.Rotation())
sketch7.addGeometry([
    Part.ArcOfCircle(Part.Circle(App.Vector(-20.62223, -11.90625, 0), App.Vector(0, 0, 1), 4.630227), math.radians(66.119205), math.radians(121.492201)),  # 0
    Part.ArcOfCircle(Part.Circle(App.Vector(-18.048956, -6.094069, 0), App.Vector(0, 0, 1), 1.726123), math.radians(-113.880795), math.radians(18.656795)),  # 1
    Part.ArcOfCircle(Part.Circle(App.Vector(0, 0, 0), App.Vector(0, 0, 1), 17.323876), math.radians(161.317269), math.radians(198.656795)),  # 2
    Part.ArcOfCircle(Part.Circle(App.Vector(-18.046196, 6.102239, 0), App.Vector(0, 0, 1), 1.726123), math.radians(-18.682731), math.radians(113.933412)),  # 3
    Part.ArcOfCircle(Part.Circle(App.Vector(-20.62223, 11.90625, 0), App.Vector(0, 0, 1), 4.623877), math.radians(-121.508985), math.radians(-66.066588)),  # 4
    Part.ArcOfCircle(Part.Circle(App.Vector(-23.940945, 6.492505, 0), App.Vector(0, 0, 1), 1.726123), math.radians(58.491015), math.radians(164.826983)),  # 5
    Part.ArcOfCircle(Part.Circle(App.Vector(0, 0, 0), App.Vector(0, 0, 1), 26.531798), math.radians(164.826983), math.radians(195.157733)),  # 6
    Part.ArcOfCircle(Part.Circle(App.Vector(-23.942676, -6.486119, 0), App.Vector(0, 0, 1), 1.726123), math.radians(-164.842267), math.radians(-58.507799)),  # 7
], False)
sketch7.addConstraint([
    Sketcher.Constraint("Tangent", 0, 1, 1, 1),
    Sketcher.Constraint("Tangent", 1, 2, 2, 2),
    Sketcher.Constraint("Tangent", 2, 1, 3, 1),
    Sketcher.Constraint("Tangent", 3, 2, 4, 2),
    Sketcher.Constraint("Tangent", 4, 1, 5, 1),
    Sketcher.Constraint("Tangent", 5, 2, 6, 1),
    Sketcher.Constraint("Tangent", 6, 2, 7, 1),
    Sketcher.Constraint("Tangent", 7, 2, 0, 2),
    Sketcher.Constraint("Coincident", 2, 3, -1, 1),
    Sketcher.Constraint("Coincident", 6, 3, -1, 1),
    Sketcher.Constraint("Equal", 1, 3),
    Sketcher.Constraint("Equal", 3, 5),
    Sketcher.Constraint("Equal", 5, 7),
    Sketcher.Constraint("Symmetric", 0, 3, 4, 3, -1),
    Sketcher.Constraint("DistanceY", 0, 3, -1, 1, Q("0.46875 in")),
    Sketcher.Constraint("Radius", 0, Q("4.630227 mm")),
    Sketcher.Constraint("Radius", 1, Q("1.726123 mm")),
    Sketcher.Constraint("Radius", 2, Q("17.323876 mm")),
    Sketcher.Constraint("Radius", 4, Q("4.623877 mm")),
    Sketcher.Constraint("Radius", 6, Q("26.531798 mm")),
    Sketcher.Constraint("DistanceX", 7, 3, 7, 2, Q("0.0354999 in")),
])
pad6 = body7.newObject("PartDesign::Pad", "Pad005")
pad6.Profile = sketch7
pad6.Length = Q("0.125 in")
pad6.Reversed = True
doc.recompute()

datumplane6 = body7.newObject("PartDesign::Plane", "DatumPlane005")
datumplane6.AttachmentSupport = (doc.getObject("XY_Plane006"), [""])
datumplane6.MapMode = "FlatFace"
datumplane6.AttachmentOffset = App.Placement(App.Vector(0, 0, 0.125 * 25.4), App.Rotation())
draft6 = body7.newObject("PartDesign::Draft", "Draft005")
draft6.Base = (pad6, faces_at(pad6, [
    (-24.58, -8.09, 1.587),
    (-20.93, -7.286, 1.587),
    (-16.885, -7.369, 1.587),
    (-17.324, 0.004, 1.587),
    (-16.883, 7.377, 1.587),
    (-20.928, 7.292, 1.587),
    (-24.578, 8.097, 1.587),
    (-26.532, 0.004, 1.587),
]))
draft6.NeutralPlane = (datumplane6, [""])
draft6.Angle = 2.5
draft6.Reversed = True
doc.recompute()

boolean6 = body.newObject("PartDesign::Boolean", "Boolean005")
boolean6.Type = "Cut"
boolean6.addObjects([body7])

# Sketch on YZ plane
sketch8 = body.newObject("Sketcher::SketchObject", "Sketch007")
sketch8.AttachmentSupport = (doc.getObject("YZ_Plane"), [""])
sketch8.MapMode = "FlatFace"
sketch8.AttachmentOffset = App.Placement(App.Vector(0, 0, 20.62223), App.Rotation())
add_polygon(sketch8, [(11.90625, -10.781704), (11.90625, 3.175), (9.30275, 3.175), (9.579997, -10.781704)])  # lines 0-3
sketch8.addGeometry(Part.LineSegment(App.Vector(11.90625, -10.781704, 0), App.Vector(11.90625, 3.175, 0)), True)  # axis
sketch8.addConstraint([
    Sketcher.Constraint("Vertical", 0),
    Sketcher.Constraint("Horizontal", 1),
    Sketcher.Constraint("Horizontal", 3),
    Sketcher.Constraint("Vertical", 4),
    Sketcher.Constraint("Coincident", 4, 1, 3, 2),
    Sketcher.Constraint("Horizontal", 1, 2, 4, 2),
    Sketcher.Constraint("DistanceX", 1, 2, 1, 1, Q("0.1025 in")),
    Sketcher.Constraint("DistanceX", -1, 1, 0, 2, Q("0.46875 in")),
    Sketcher.Constraint("DistanceY", -1, 1, 0, 2, Q("0.125 in")),
    Sketcher.Constraint("DistanceX", 3, 1, 3, 2, Q("2.326253 mm")),
    Sketcher.Constraint("DistanceY", 0, 1, 0, 2, Q("13.956704 mm")),
])
groove = body.newObject("PartDesign::Groove", "Groove")
groove.Profile = sketch8
groove.ReferenceAxis = (sketch8, ["Axis0"])
groove.Angle = 360
doc.recompute()

linearpattern = body.newObject("PartDesign::LinearPattern", "LinearPattern")
linearpattern.Originals = [groove]
linearpattern.Direction = (doc.getObject("Y_Axis"), [""])
linearpattern.Mode = "offset"
linearpattern.Offset = Q("0.9375 in")
linearpattern.Occurrences = 2
linearpattern.Reversed = True
body.Tip = linearpattern
doc.recompute()

datumline = body.newObject("PartDesign::Line", "DatumLine")
datumline.Placement = App.Placement(App.Vector(0, 0, 0), App.Rotation(App.Vector(0, 0, 1), App.Vector(-0.5, -0.866025404, 0)))
linearpattern2 = body.newObject("PartDesign::LinearPattern", "LinearPattern001")
linearpattern2.Originals = [groove]
linearpattern2.Direction = (datumline, [""])
linearpattern2.Mode = "offset"
linearpattern2.Offset = 41.24446
linearpattern2.Occurrences = 2
body.Tip = linearpattern2
doc.recompute()

datumline2 = body.newObject("PartDesign::Line", "DatumLine001")
datumline2.Placement = App.Placement(App.Vector(0, 0, 0), App.Rotation(App.Vector(0, 0, 1), App.Vector(-0.866025404, -0.5, 0)))
linearpattern3 = body.newObject("PartDesign::LinearPattern", "LinearPattern002")
linearpattern3.Originals = [groove]
linearpattern3.Direction = (datumline2, [""])
linearpattern3.Mode = "offset"
linearpattern3.Offset = Q("1.875 in")
linearpattern3.Occurrences = 2
body.Tip = linearpattern3

# Sketch on YZ plane
sketch9 = body.newObject("Sketcher::SketchObject", "Sketch008")
sketch9.AttachmentSupport = (doc.getObject("YZ_Plane"), [""])
sketch9.MapMode = "FlatFace"
add_polygon(sketch9, [(0, -10.781704), (0, 3.175), (-14.628247, 3.175), (-14.351, -10.781704)])  # lines 0-3
sketch9.addConstraint([
    Sketcher.Constraint("Vertical", 0),
    Sketcher.Constraint("Horizontal", 1),
    Sketcher.Constraint("Horizontal", 3),
    Sketcher.Constraint("PointOnObject", 0, 2, -2),
    Sketcher.Constraint("DistanceX", 3, 1, 3, 2, Q("0.565 in")),
    Sketcher.Constraint("DistanceY", -1, 1, 0, 2, Q("0.125 in")),
    Sketcher.Constraint("DistanceX", 1, 2, 1, 1, Q("14.628247 mm")),
    Sketcher.Constraint("DistanceY", 0, 1, 0, 2, Q("13.956704 mm")),
])
groove2 = body.newObject("PartDesign::Groove", "Groove001")
groove2.Profile = sketch9
groove2.ReferenceAxis = (sketch9, ["V_Axis"])
groove2.Angle = 360

# Sketch on YZ plane
sketch10 = body.newObject("Sketcher::SketchObject", "Sketch009")
sketch10.AttachmentSupport = (doc.getObject("YZ_Plane"), [""])
sketch10.MapMode = "FlatFace"
sketch10.AttachmentOffset = App.Placement(App.Vector(0, 0, -20.62223), App.Rotation())
add_polygon(sketch10, [(11.90625, -10.781704), (11.90625, 3.175), (9.30275, 3.175), (9.524497, -10.781704)])  # lines 0-3
sketch10.addGeometry(Part.LineSegment(App.Vector(11.90625, -10.781704, 0), App.Vector(11.90625, 3.175, 0)), True)  # axis
sketch10.addConstraint([
    Sketcher.Constraint("Vertical", 0),
    Sketcher.Constraint("Horizontal", 1),
    Sketcher.Constraint("Horizontal", 3),
    Sketcher.Constraint("Vertical", 4),
    Sketcher.Constraint("Coincident", 4, 1, 3, 2),
    Sketcher.Constraint("Horizontal", 1, 2, 4, 2),
    Sketcher.Constraint("DistanceX", 1, 2, 1, 1, Q("0.1025 in")),
    Sketcher.Constraint("DistanceX", -1, 1, 0, 2, Q("0.46875 in")),
    Sketcher.Constraint("DistanceY", -1, 1, 0, 2, Q("0.125 in")),
    Sketcher.Constraint("DistanceX", 3, 1, 3, 2, Q("2.381753 mm")),
    Sketcher.Constraint("DistanceY", 0, 1, 0, 2, Q("13.956704 mm")),
])
groove3 = body.newObject("PartDesign::Groove", "Groove002")
groove3.Profile = sketch10
groove3.ReferenceAxis = (sketch10, ["Axis0"])
groove3.Angle = 360
doc.recompute()

datumline3 = body.newObject("PartDesign::Line", "DatumLine002")
datumline3.Placement = App.Placement(App.Vector(0, 0, 0), App.Rotation(App.Vector(0, 0, 1), App.Vector(0.866025404, 0.5, 0)))
linearpattern4 = body.newObject("PartDesign::LinearPattern", "LinearPattern003")
linearpattern4.Originals = [groove3]
linearpattern4.Direction = (datumline3, [""])
linearpattern4.Mode = "offset"
linearpattern4.Offset = Q("0.9375 in")
linearpattern4.Occurrences = 2
body.Tip = linearpattern4

doc.recompute()
